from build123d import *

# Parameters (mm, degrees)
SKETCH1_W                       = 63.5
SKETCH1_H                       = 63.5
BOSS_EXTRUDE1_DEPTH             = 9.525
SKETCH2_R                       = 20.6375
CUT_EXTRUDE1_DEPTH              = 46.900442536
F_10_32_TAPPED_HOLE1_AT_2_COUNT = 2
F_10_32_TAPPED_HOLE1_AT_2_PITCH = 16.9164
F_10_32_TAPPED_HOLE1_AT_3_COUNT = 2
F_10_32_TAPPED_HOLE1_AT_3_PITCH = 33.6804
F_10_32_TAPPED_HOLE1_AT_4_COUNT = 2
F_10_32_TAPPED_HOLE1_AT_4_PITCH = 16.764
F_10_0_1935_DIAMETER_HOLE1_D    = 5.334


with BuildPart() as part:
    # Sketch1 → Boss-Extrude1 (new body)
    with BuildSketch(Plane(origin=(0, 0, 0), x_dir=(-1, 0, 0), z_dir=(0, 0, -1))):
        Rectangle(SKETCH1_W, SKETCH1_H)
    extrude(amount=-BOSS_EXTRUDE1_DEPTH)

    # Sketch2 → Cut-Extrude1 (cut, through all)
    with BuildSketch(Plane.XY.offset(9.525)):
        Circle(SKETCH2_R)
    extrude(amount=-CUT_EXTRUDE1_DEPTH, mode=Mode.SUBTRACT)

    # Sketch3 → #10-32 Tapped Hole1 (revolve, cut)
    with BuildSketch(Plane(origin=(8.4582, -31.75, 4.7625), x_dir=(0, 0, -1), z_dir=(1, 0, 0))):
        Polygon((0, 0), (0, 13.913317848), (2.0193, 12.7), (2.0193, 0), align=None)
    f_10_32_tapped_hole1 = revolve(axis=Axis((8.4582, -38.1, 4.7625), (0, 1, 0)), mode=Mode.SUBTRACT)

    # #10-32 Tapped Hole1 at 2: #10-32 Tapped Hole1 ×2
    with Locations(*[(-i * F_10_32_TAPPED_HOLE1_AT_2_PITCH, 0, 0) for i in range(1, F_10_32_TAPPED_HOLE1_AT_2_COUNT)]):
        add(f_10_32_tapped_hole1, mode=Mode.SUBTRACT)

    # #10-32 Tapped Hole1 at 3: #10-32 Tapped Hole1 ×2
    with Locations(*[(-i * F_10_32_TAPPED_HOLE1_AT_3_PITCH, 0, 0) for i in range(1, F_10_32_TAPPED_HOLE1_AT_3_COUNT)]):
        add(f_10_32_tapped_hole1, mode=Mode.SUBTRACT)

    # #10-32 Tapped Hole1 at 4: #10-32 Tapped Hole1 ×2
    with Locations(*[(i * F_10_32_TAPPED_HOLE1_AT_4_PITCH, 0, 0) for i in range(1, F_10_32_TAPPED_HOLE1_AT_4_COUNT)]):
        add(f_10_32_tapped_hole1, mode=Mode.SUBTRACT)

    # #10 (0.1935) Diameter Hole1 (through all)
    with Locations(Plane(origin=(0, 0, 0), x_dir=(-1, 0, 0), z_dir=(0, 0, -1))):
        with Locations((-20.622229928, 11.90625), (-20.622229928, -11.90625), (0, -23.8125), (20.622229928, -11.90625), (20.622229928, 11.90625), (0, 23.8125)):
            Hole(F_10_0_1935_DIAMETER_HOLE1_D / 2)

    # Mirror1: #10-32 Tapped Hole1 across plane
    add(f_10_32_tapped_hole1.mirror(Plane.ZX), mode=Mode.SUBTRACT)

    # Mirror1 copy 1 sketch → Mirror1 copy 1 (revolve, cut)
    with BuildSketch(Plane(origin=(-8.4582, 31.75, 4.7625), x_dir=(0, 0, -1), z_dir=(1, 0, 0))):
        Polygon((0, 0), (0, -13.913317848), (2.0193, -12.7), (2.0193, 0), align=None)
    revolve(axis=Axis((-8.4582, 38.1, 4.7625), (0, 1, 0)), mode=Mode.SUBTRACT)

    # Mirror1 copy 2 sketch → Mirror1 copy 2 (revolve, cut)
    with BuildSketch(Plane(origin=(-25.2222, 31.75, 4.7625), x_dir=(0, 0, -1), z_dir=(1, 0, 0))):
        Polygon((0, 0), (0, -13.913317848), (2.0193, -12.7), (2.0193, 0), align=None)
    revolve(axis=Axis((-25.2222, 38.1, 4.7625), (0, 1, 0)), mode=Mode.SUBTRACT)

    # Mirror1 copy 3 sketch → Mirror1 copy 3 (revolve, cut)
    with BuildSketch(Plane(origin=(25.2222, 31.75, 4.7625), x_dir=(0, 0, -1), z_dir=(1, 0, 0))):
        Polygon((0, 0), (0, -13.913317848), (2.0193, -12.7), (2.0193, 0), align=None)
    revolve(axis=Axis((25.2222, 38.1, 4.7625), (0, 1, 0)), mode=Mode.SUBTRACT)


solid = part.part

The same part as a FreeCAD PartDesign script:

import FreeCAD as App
import Part
import Sketcher

V = App.Vector
Q = App.Units.Quantity


def add_polygon(sketch, points):
    """Adds a closed chain of lines whose ends are joined by coincident constraints."""
    first, n = sketch.GeometryCount, len(points)
    for a, b in zip(points, points[1:] + points[:1]):
        sketch.addGeometry(Part.LineSegment(App.Vector(*a, 0), App.Vector(*b, 0)), False)
    for i in range(n):
        sketch.addConstraint(Sketcher.Constraint("Coincident", first + i, 2, first + (i + 1) % n, 1))

doc = App.newDocument("Part")
body = doc.addObject("PartDesign::Body", "Body")

# Sketch on XY plane
sketch1 = body.newObject("Sketcher::SketchObject", "Sketch")
sketch1.AttachmentSupport = (doc.getObject("XY_Plane"), [""])
sketch1.MapMode = "FlatFace"
add_polygon(sketch1, [(32, 32), (32, -32), (-32, -32), (-32, 32)])  # lines 0-3
sketch1.addConstraint(Sketcher.Constraint("Vertical", 0))
sketch1.addConstraint(Sketcher.Constraint("Horizontal", 1))
sketch1.addConstraint(Sketcher.Constraint("Vertical", 2))
sketch1.addConstraint(Sketcher.Constraint("Horizontal", 3))
sketch1.addConstraint(Sketcher.Constraint("Symmetric", 0, 2, 2, 2, -1, 1))
sketch1.addConstraint(Sketcher.Constraint("Equal", 3, 0))
sketch1.addConstraint(Sketcher.Constraint("DistanceX", 1, 2, 1, 1, Q("2.5 in")))
pad1 = body.newObject("PartDesign::Pad", "Pad")
pad1.Profile = sketch1
pad1.Length = Q("0.375 in")

# Sketch on XY plane
sketch2 = body.newObject("Sketcher::SketchObject", "Sketch001")
sketch2.AttachmentSupport = (doc.getObject("XY_Plane"), [""])
sketch2.MapMode = "FlatFace"
sketch2.AttachmentOffset = App.Placement(V(0, 0, 0.375 * 25.4), App.Rotation())
sketch2.addGeometry(Part.Circle(V(0, 0, 0), V(0, 0, 1), 21), False)
sketch2.addConstraint(Sketcher.Constraint("Coincident", 0, 3, -1, 1))
sketch2.addConstraint(Sketcher.Constraint("Diameter", 0, Q("1.625 in")))
pocket1 = body.newObject("PartDesign::Pocket", "Pocket")
pocket1.Profile = sketch2
pocket1.Type = "ThroughAll"

# Sketch on YZ plane
sketch3 = body.newObject("Sketcher::SketchObject", "Sketch002")
sketch3.AttachmentSupport = (doc.getObject("YZ_Plane"), [""])
sketch3.MapMode = "FlatFace"
sketch3.AttachmentOffset = App.Placement(V(0, 0, 0.333 * 25.4), App.Rotation())
add_polygon(sketch3, [(-17.8, 4.8), (-31.8, 4.8), (-31.8, 2.7), (-19.1, 2.7)])  # lines 0-3
sketch3.addGeometry(Part.LineSegment(V(-31.8, 4.8, 0), V(-17.8, 4.8, 0)), True)  # axis
sketch3.addConstraint(Sketcher.Constraint("Horizontal", 0))
sketch3.addConstraint(Sketcher.Constraint("Vertical", 1))
sketch3.addConstraint(Sketcher.Constraint("Horizontal", 2))
sketch3.addConstraint(Sketcher.Constraint("Horizontal", 4))
sketch3.addConstraint(Sketcher.Constraint("Coincident", 4, 1, 0, 2))
sketch3.addConstraint(Sketcher.Constraint("Equal", 0, 4))
sketch3.addConstraint(Sketcher.Constraint("DistanceX", 2, 1, 2, 2, Q("0.5 in")))
sketch3.addConstraint(Sketcher.Constraint("Angle", 3, Q("59 deg")))
sketch3.addConstraint(Sketcher.Constraint("DistanceX", 0, 2, -1, 1, Q("1.25 in")))
sketch3.addConstraint(Sketcher.Constraint("DistanceY", 1, 2, 1, 1, Q("0.0795 in")))
sketch3.addConstraint(Sketcher.Constraint("DistanceY", -1, 1, 0, 2, Q("0.1875 in")))
groove = body.newObject("PartDesign::Groove", "Groove")
groove.Profile = sketch3
groove.ReferenceAxis = (sketch3, ["Axis0"])
groove.Angle = 360
doc.recompute()

linearpattern = body.newObject("PartDesign::LinearPattern", "LinearPattern")
linearpattern.Originals = [groove]
linearpattern.Direction = (doc.getObject("X_Axis"), [""])
linearpattern.Mode = "offset"
linearpattern.Offset = Q("0.666 in")
linearpattern.Occurrences = 2
linearpattern.Reversed = True
body.Tip = linearpattern
doc.recompute()

linearpattern2 = body.newObject("PartDesign::LinearPattern", "LinearPattern001")
linearpattern2.Originals = [groove]
linearpattern2.Direction = (doc.getObject("X_Axis"), [""])
linearpattern2.Mode = "offset"
linearpattern2.Offset = Q("1.326 in")
linearpattern2.Occurrences = 2
linearpattern2.Reversed = True
body.Tip = linearpattern2
doc.recompute()

linearpattern3 = body.newObject("PartDesign::LinearPattern", "LinearPattern002")
linearpattern3.Originals = [groove]
linearpattern3.Direction = (doc.getObject("X_Axis"), [""])
linearpattern3.Mode = "offset"
linearpattern3.Offset = Q("0.66 in")
linearpattern3.Occurrences = 2
body.Tip = linearpattern3

# Sketch on XY plane
sketch4 = body.newObject("Sketcher::SketchObject", "Sketch003")
sketch4.AttachmentSupport = (doc.getObject("XY_Plane"), [""])
sketch4.MapMode = "FlatFace"
sketch4.addGeometry(Part.Circle(V(20.6, 11.9, 0), V(0, 0, 1), 2.7), False)
sketch4.addGeometry(Part.Circle(V(20.6, -11.9, 0), V(0, 0, 1), 2.7), False)
sketch4.addGeometry(Part.Circle(V(0, -23.8, 0), V(0, 0, 1), 2.7), False)
sketch4.addGeometry(Part.Circle(V(-20.6, -11.9, 0), V(0, 0, 1), 2.7), False)
sketch4.addGeometry(Part.Circle(V(-20.6, 11.9, 0), V(0, 0, 1), 2.7), False)
sketch4.addGeometry(Part.Circle(V(0, 23.8, 0), V(0, 0, 1), 2.7), False)
sketch4.addConstraint(Sketcher.Constraint("Equal", 0, 1))
sketch4.addConstraint(Sketcher.Constraint("Equal", 1, 2))
sketch4.addConstraint(Sketcher.Constraint("Equal", 2, 3))
sketch4.addConstraint(Sketcher.Constraint("Equal", 3, 4))
sketch4.addConstraint(Sketcher.Constraint("Equal", 4, 5))
sketch4.addConstraint(Sketcher.Constraint("Symmetric", 0, 3, 3, 3, -1, 1))
sketch4.addConstraint(Sketcher.Constraint("Symmetric", 1, 3, 4, 3, -1, 1))
sketch4.addConstraint(Sketcher.Constraint("Symmetric", 2, 3, 5, 3, -1, 1))
sketch4.addConstraint(Sketcher.Constraint("Symmetric", 1, 3, 3, 3, -2))
sketch4.addConstraint(Sketcher.Constraint("PointOnObject", 2, 3, -2))
sketch4.addConstraint(Sketcher.Constraint("Diameter", 0, Q("0.21 in")))
sketch4.addConstraint(Sketcher.Constraint("DistanceY", -1, 1, 0, 3, Q("0.46875 in")))
sketch4.addConstraint(Sketcher.Constraint("DistanceY", 2, 3, -1, 1, Q("0.9375 in")))
sketch4.addConstraint(Sketcher.Constraint("DistanceX", -1, 1, 0, 3, Q("20.62223 mm")))
doc.recompute()
hole = body.newObject("PartDesign::Hole", "Hole")
hole.Profile = sketch4
hole.ThreadType = "None"
hole.Diameter = Q("0.21 in")
hole.DepthType = "ThroughAll"
hole.Reversed = True
doc.recompute()

mirrored = body.newObject("PartDesign::Mirrored", "Mirrored")
mirrored.Originals = [groove]
mirrored.MirrorPlane = (doc.getObject("XZ_Plane"), [""])
body.Tip = mirrored

# Sketch on YZ plane
sketch5 = body.newObject("Sketcher::SketchObject", "Sketch004")
sketch5.AttachmentSupport = (doc.getObject("YZ_Plane"), [""])
sketch5.MapMode = "FlatFace"
sketch5.AttachmentOffset = App.Placement(V(0, 0, -0.333 * 25.4), App.Rotation())
add_polygon(sketch5, [(31.8, 4.8), (17.8, 4.8), (19.1, 2.7), (31.8, 2.7)])  # lines 0-3
sketch5.addGeometry(Part.LineSegment(V(17.8, 4.8, 0), V(31.8, 4.8, 0)), True)  # axis
sketch5.addConstraint(Sketcher.Constraint("Horizontal", 0))
sketch5.addConstraint(Sketcher.Constraint("Horizontal", 2))
sketch5.addConstraint(Sketcher.Constraint("Vertical", 3))
sketch5.addConstraint(Sketcher.Constraint("Horizontal", 4))
sketch5.addConstraint(Sketcher.Constraint("Coincident", 4, 1, 0, 2))
sketch5.addConstraint(Sketcher.Constraint("Vertical", 2, 2, 4, 2))
sketch5.addConstraint(Sketcher.Constraint("DistanceX", 2, 1, 2, 2, Q("0.5 in")))
sketch5.addConstraint(Sketcher.Constraint("Angle", 1, Q("-59 deg")))
sketch5.addConstraint(Sketcher.Constraint("DistanceX", -1, 1, 1, 2, Q("0.75 in")))
sketch5.addConstraint(Sketcher.Constraint("DistanceY", 3, 1, 3, 2, Q("0.0795 in")))
sketch5.addConstraint(Sketcher.Constraint("DistanceY", -1, 1, 0, 2, Q("0.1875 in")))
groove2 = body.newObject("PartDesign::Groove", "Groove001")
groove2.Profile = sketch5
groove2.ReferenceAxis = (sketch5, ["Axis0"])
groove2.Angle = 360

# Sketch on YZ plane
sketch6 = body.newObject("Sketcher::SketchObject", "Sketch005")
sketch6.AttachmentSupport = (doc.getObject("YZ_Plane"), [""])
sketch6.MapMode = "FlatFace"
sketch6.AttachmentOffset = App.Placement(V(0, 0, -0.993 * 25.4), App.Rotation())
add_polygon(sketch6, [(31.8, 4.8), (17.8, 4.8), (19.1, 2.7), (31.8, 2.7)])  # lines 0-3
sketch6.addGeometry(Part.LineSegment(V(17.8, 4.8, 0), V(31.8, 4.8, 0)), True)  # axis
sketch6.addConstraint(Sketcher.Constraint("Horizontal", 0))
sketch6.addConstraint(Sketcher.Constraint("Horizontal", 2))
sketch6.addConstraint(Sketcher.Constraint("Vertical", 3))
sketch6.addConstraint(Sketcher.Constraint("Horizontal", 4))
sketch6.addConstraint(Sketcher.Constraint("Coincident", 4, 1, 0, 2))
sketch6.addConstraint(Sketcher.Constraint("Vertical", 2, 2, 4, 2))
sketch6.addConstraint(Sketcher.Constraint("DistanceX", 2, 1, 2, 2, Q("0.5 in")))
sketch6.addConstraint(Sketcher.Constraint("Angle", 1, Q("-59 deg")))
sketch6.addConstraint(Sketcher.Constraint("DistanceX", -1, 1, 1, 2, Q("0.75 in")))
sketch6.addConstraint(Sketcher.Constraint("DistanceY", 3, 1, 3, 2, Q("0.0795 in")))
sketch6.addConstraint(Sketcher.Constraint("DistanceY", -1, 1, 0, 2, Q("0.1875 in")))
groove3 = body.newObject("PartDesign::Groove", "Groove002")
groove3.Profile = sketch6
groove3.ReferenceAxis = (sketch6, ["Axis0"])
groove3.Angle = 360

# Sketch on YZ plane
sketch7 = body.newObject("Sketcher::SketchObject", "Sketch006")
sketch7.AttachmentSupport = (doc.getObject("YZ_Plane"), [""])
sketch7.MapMode = "FlatFace"
sketch7.AttachmentOffset = App.Placement(V(0, 0, 0.993 * 25.4), App.Rotation())
add_polygon(sketch7, [(31.8, 4.8), (17.8, 4.8), (19.1, 2.7), (31.8, 2.7)])  # lines 0-3
sketch7.addGeometry(Part.LineSegment(V(17.8, 4.8, 0), V(31.8, 4.8, 0)), True)  # axis
sketch7.addConstraint(Sketcher.Constraint("Horizontal", 0))
sketch7.addConstraint(Sketcher.Constraint("Horizontal", 2))
sketch7.addConstraint(Sketcher.Constraint("Vertical", 3))
sketch7.addConstraint(Sketcher.Constraint("Horizontal", 4))
sketch7.addConstraint(Sketcher.Constraint("Coincident", 4, 1, 0, 2))
sketch7.addConstraint(Sketcher.Constraint("Vertical", 2, 2, 4, 2))
sketch7.addConstraint(Sketcher.Constraint("DistanceX", 2, 1, 2, 2, Q("0.5 in")))
sketch7.addConstraint(Sketcher.Constraint("Angle", 1, Q("-59 deg")))
sketch7.addConstraint(Sketcher.Constraint("DistanceX", -1, 1, 1, 2, Q("0.75 in")))
sketch7.addConstraint(Sketcher.Constraint("DistanceY", 3, 1, 3, 2, Q("0.0795 in")))
sketch7.addConstraint(Sketcher.Constraint("DistanceY", -1, 1, 0, 2, Q("0.1875 in")))
groove4 = body.newObject("PartDesign::Groove", "Groove003")
groove4.Profile = sketch7
groove4.ReferenceAxis = (sketch7, ["Axis0"])
groove4.Angle = 360

doc.recompute()
